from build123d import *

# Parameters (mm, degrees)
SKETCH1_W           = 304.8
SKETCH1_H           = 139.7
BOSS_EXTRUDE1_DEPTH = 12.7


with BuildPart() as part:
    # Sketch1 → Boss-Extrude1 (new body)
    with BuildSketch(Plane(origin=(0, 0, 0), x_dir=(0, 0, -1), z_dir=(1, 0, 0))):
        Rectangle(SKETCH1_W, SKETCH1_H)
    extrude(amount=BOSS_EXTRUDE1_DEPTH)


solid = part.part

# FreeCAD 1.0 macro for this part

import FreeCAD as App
import Part
import Sketcher

V = App.Vector
Q = App.Units.Quantity

doc = App.newDocument("Part")
body = doc.addObject("PartDesign::Body", "Body")

# Sketch on YZ plane
sketch1 = body.newObject("Sketcher::SketchObject", "Sketch")
sketch1.AttachmentSupport = (doc.getObject("YZ_Plane"), [""])
sketch1.MapMode = "FlatFace"
sketch1.addGeometry([
    Part.LineSegment(V(70, 152, 0), V(-70, 152, 0)),
    Part.LineSegment(V(-70, 152, 0), V(-70, -152, 0)),
    Part.LineSegment(V(-70, -152, 0), V(70, -152, 0)),
    Part.LineSegment(V(70, -152, 0), V(70, 152, 0)),
], False)
sketch1.addConstraint([
    Sketcher.Constraint("Coincident", 0, 2, 1, 1),
    Sketcher.Constraint("Coincident", 1, 2, 2, 1),
    Sketcher.Constraint("Coincident", 2, 2, 3, 1),
    Sketcher.Constraint("Coincident", 3, 2, 0, 1),
    Sketcher.Constraint("Horizontal", 0),
    Sketcher.Constraint("Vertical", 1),
    Sketcher.Constraint("Horizontal", 2),
    Sketcher.Constraint("Vertical", 3),
    Sketcher.Constraint("Symmetric", 0, 2, 2, 2, -1, 1),
    Sketcher.Constraint("DistanceY", 1, 2, 1, 1, Q("12 in")),
    Sketcher.Constraint("DistanceX", 0, 2, 0, 1, Q("5.5 in")),
])
pad1 = body.newObject("PartDesign::Pad", "Pad")
pad1.Profile = sketch1
pad1.Length = Q("0.5 in")

doc.recompute()
